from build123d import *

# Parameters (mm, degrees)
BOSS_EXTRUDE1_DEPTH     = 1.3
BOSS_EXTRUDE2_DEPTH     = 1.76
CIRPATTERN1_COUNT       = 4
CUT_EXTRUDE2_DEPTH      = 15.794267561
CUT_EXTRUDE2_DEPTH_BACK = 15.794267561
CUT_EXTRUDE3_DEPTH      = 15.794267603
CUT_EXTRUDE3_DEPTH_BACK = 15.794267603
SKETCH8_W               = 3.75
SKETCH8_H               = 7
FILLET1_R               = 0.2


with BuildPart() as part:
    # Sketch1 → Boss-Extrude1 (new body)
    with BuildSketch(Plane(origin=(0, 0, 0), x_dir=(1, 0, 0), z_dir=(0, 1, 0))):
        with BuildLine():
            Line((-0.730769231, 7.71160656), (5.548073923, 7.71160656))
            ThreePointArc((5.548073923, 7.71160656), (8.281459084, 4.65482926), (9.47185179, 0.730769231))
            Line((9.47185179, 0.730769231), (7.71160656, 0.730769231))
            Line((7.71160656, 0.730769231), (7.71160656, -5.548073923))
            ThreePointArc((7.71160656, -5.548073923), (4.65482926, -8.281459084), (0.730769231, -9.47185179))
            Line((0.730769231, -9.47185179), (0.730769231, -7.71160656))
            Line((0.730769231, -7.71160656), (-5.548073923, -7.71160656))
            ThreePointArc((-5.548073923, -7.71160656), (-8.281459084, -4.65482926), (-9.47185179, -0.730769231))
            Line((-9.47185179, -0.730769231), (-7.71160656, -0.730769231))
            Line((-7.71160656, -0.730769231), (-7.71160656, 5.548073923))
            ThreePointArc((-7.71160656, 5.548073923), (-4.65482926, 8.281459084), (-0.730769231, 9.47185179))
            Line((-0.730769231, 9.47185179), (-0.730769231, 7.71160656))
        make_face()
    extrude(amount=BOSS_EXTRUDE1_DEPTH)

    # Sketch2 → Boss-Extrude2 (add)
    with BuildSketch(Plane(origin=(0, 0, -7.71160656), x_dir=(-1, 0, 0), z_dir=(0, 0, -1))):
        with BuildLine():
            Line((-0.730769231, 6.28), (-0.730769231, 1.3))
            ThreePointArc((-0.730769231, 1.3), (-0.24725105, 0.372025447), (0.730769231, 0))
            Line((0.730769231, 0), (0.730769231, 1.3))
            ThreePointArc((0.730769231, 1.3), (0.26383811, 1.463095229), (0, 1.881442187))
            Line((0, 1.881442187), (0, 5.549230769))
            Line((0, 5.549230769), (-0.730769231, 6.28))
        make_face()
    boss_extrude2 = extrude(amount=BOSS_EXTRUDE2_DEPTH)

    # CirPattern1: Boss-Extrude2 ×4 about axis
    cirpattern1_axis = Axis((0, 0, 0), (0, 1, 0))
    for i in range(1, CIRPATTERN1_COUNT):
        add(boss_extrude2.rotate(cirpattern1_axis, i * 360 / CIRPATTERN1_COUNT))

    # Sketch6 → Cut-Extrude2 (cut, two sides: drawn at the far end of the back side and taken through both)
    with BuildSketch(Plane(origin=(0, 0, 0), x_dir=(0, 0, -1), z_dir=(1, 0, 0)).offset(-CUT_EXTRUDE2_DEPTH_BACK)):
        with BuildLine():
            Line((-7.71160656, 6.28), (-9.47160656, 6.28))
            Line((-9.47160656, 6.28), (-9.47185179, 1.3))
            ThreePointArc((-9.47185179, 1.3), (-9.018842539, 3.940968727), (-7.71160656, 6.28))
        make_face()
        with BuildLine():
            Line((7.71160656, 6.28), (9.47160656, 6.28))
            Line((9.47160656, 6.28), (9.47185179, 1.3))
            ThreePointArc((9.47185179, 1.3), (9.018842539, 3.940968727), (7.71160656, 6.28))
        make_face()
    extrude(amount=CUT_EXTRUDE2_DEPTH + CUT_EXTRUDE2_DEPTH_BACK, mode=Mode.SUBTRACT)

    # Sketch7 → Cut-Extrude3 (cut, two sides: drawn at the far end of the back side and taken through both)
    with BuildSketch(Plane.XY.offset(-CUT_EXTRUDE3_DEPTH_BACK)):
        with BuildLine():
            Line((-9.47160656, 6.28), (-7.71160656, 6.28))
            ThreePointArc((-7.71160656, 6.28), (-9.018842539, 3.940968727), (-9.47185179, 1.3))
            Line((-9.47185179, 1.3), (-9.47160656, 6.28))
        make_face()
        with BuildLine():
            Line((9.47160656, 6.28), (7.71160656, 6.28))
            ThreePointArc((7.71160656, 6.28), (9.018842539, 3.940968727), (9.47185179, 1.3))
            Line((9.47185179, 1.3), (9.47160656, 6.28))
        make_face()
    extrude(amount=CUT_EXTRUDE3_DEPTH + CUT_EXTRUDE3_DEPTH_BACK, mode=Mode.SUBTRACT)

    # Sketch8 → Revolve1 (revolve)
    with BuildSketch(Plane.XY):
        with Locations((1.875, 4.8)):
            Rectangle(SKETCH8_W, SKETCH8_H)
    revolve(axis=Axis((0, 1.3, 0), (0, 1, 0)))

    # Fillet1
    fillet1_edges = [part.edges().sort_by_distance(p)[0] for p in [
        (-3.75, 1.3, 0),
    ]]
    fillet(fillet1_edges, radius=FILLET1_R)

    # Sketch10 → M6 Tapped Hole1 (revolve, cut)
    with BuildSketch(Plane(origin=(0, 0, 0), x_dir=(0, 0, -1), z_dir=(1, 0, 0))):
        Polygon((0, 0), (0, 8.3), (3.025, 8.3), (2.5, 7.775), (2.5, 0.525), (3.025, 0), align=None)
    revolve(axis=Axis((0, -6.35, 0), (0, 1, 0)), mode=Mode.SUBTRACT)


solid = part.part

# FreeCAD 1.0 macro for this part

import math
import FreeCAD as App
import Part
import Sketcher
Q = App.Units.Quantity


def edges_at(feature, points):
    """Names of the edges that pass closest to the given points."""
    edges = feature.Shape.Edges
    near = lambda p: min(range(len(edges)), key=lambda i: edges[i].distToShape(Part.Vertex(*p))[0])
    return sorted({f"Edge{near(p) + 1}" for p in points})

doc = App.newDocument("Part")
body = doc.addObject("PartDesign::Body", "Body")

sketch1 = doc.addObject("Sketcher::SketchObject", "Sketch")
body.addObject(sketch1)
sketch1.AttachmentSupport = (doc.XZ_Plane, [""])
sketch1.MapMode = "FlatFace"
sketch1.addGeometry([
    Part.LineSegment(App.Vector(5.548074, -7.711607, 0), App.Vector(-0.730769, -7.711607, 0)),
    Part.LineSegment(App.Vector(-0.730769, -7.711607, 0), App.Vector(-0.730769, -9.471852, 0)),
    Part.ArcOfCircle(Part.Circle(App.Vector(0, 0, 0), App.Vector(0, 0, 1), 9.5), math.radians(-144.267075), math.radians(-94.411726)),
    Part.LineSegment(App.Vector(-7.711607, -5.548074, 0), App.Vector(-7.711607, 0.730769, 0)),
    Part.LineSegment(App.Vector(-7.711607, 0.730769, 0), App.Vector(-9.471852, 0.730769, 0)),
    Part.ArcOfCircle(Part.Circle(App.Vector(0, 0, 0), App.Vector(0, 0, 1), 9.5), math.radians(125.732925), math.radians(175.588274)),
    Part.LineSegment(App.Vector(-5.548074, 7.711607, 0), App.Vector(0.730769, 7.711607, 0)),
    Part.LineSegment(App.Vector(0.730769, 7.711607, 0), App.Vector(0.730769, 9.471852, 0)),
    Part.ArcOfCircle(Part.Circle(App.Vector(0, 0, 0), App.Vector(0, 0, 1), 9.5), math.radians(35.732925), math.radians(85.588274)),
    Part.LineSegment(App.Vector(7.711607, 5.548074, 0), App.Vector(7.711607, -0.730769, 0)),
    Part.LineSegment(App.Vector(7.711607, -0.730769, 0), App.Vector(9.471852, -0.730769, 0)),
    Part.ArcOfCircle(Part.Circle(App.Vector(0, 0, 0), App.Vector(0, 0, 1), 9.5), math.radians(-54.267075), math.radians(-4.411726)),
], False)
sketch1.addConstraint([
    Sketcher.Constraint("Coincident", 0, 2, 1, 1),
    Sketcher.Constraint("Coincident", 1, 2, 2, 2),
    Sketcher.Constraint("Coincident", 2, 1, 3, 1),
    Sketcher.Constraint("Coincident", 3, 2, 4, 1),
    Sketcher.Constraint("Coincident", 4, 2, 5, 2),
    Sketcher.Constraint("Coincident", 5, 1, 6, 1),
    Sketcher.Constraint("Coincident", 6, 2, 7, 1),
    Sketcher.Constraint("Coincident", 7, 2, 8, 2),
    Sketcher.Constraint("Coincident", 8, 1, 9, 1),
    Sketcher.Constraint("Coincident", 9, 2, 10, 1),
    Sketcher.Constraint("Coincident", 10, 2, 11, 2),
    Sketcher.Constraint("Coincident", 11, 1, 0, 1),
    Sketcher.Constraint("Horizontal", 0),
    Sketcher.Constraint("Vertical", 1),
    Sketcher.Constraint("Vertical", 3),
    Sketcher.Constraint("Horizontal", 4),
    Sketcher.Constraint("Horizontal", 6),
    Sketcher.Constraint("Vertical", 7),
    Sketcher.Constraint("Vertical", 9),
    Sketcher.Constraint("Horizontal", 10),
    Sketcher.Constraint("Coincident", 2, 3, -1, 1),
    Sketcher.Constraint("Coincident", 5, 3, -1, 1),
    Sketcher.Constraint("Coincident", 8, 3, -1, 1),
    Sketcher.Constraint("Coincident", 11, 3, -1, 1),
    Sketcher.Constraint("Equal", 2, 5),
    Sketcher.Constraint("Equal", 5, 8),
    Sketcher.Constraint("Equal", 8, 11),
    Sketcher.Constraint("Symmetric", 0, 2, 6, 2, -1, 1),
    Sketcher.Constraint("Symmetric", 3, 2, 9, 2, -1, 1),
    Sketcher.Constraint("Equal", 10, 1),
    Sketcher.Constraint("Equal", 6, 3),
    Sketcher.Constraint("Radius", 2, 9.5),
    Sketcher.Constraint("DistanceX", 0, 2, 0, 1, 6.278843),
    Sketcher.Constraint("DistanceX", 4, 2, 4, 1, 1.760245),
])
pad1 = doc.addObject("PartDesign::Pad", "Pad")
body.addObject(pad1)
pad1.Profile = sketch1
pad1.Length = 1.3
pad1.Reversed = True

sketch2 = doc.addObject("Sketcher::SketchObject", "Sketch001")
body.addObject(sketch2)
sketch2.AttachmentSupport = (doc.XY_Plane, [""])
sketch2.MapMode = "FlatFace"
sketch2.AttachmentOffset = App.Placement(App.Vector(0, 0, -7.711607), App.Rotation())
sketch2.addGeometry([
    Part.LineSegment(App.Vector(0.730769, 6.28, 0), App.Vector(0.730769, 1.3, 0)),
    Part.ArcOfCircle(Part.Circle(App.Vector(-0.730769, 1.471575, 0), App.Vector(0, 0, 1), 1.471575), math.radians(-90), math.radians(-6.695498)),
    Part.LineSegment(App.Vector(-0.730769, 0, 0), App.Vector(-0.730769, 1.3, 0)),
    Part.ArcOfCircle(Part.Circle(App.Vector(-0.730769, 2.049944, 0), App.Vector(0, 0, 1), 0.749944), math.radians(-90), math.radians(-12.984434)),
    Part.LineSegment(App.Vector(0, 1.881442, 0), App.Vector(0, 5.549231, 0)),
    Part.LineSegment(App.Vector(0, 5.549231, 0), App.Vector(0.730769, 6.28, 0)),
], False)
sketch2.addConstraint([
    Sketcher.Constraint("Coincident", 0, 2, 1, 2),
    Sketcher.Constraint("Coincident", 1, 1, 2, 1),
    Sketcher.Constraint("Coincident", 2, 2, 3, 1),
    Sketcher.Constraint("Coincident", 3, 2, 4, 1),
    Sketcher.Constraint("Coincident", 4, 2, 5, 1),
    Sketcher.Constraint("Coincident", 5, 2, 0, 1),
    Sketcher.Constraint("Vertical", 0),
    Sketcher.Constraint("Vertical", 2),
    Sketcher.Constraint("Vertical", 4),
    Sketcher.Constraint("Symmetric", 0, 2, 2, 2, -2),
    Sketcher.Constraint("PointOnObject", 1, 1, -1),
    Sketcher.Constraint("PointOnObject", 3, 2, -2),
    Sketcher.Constraint("Vertical", 1, 3, 3, 3),
    Sketcher.Constraint("Vertical", 3, 3, 1, 1),
    Sketcher.Constraint("Angle", 5, Q("45 deg")),
    Sketcher.Constraint("DistanceY", 2, 1, 2, 2, 1.3),
    Sketcher.Constraint("DistanceY", 0, 2, 0, 1, 4.98),
    Sketcher.Constraint("Radius", 1, 1.471575),
    Sketcher.Constraint("Radius", 3, 0.749944),
])
pad2 = doc.addObject("PartDesign::Pad", "Pad001")
body.addObject(pad2)
pad2.Profile = sketch2
pad2.Length = 1.76
pad2.Reversed = True
doc.recompute()

polarpattern = doc.addObject("PartDesign::PolarPattern", "PolarPattern")
body.addObject(polarpattern)
polarpattern.Originals = [pad2]
polarpattern.Axis = (doc.Y_Axis, [""])
polarpattern.Angle = 360
polarpattern.Occurrences = 4
body.Tip = polarpattern

sketch3 = doc.addObject("Sketcher::SketchObject", "Sketch002")
body.addObject(sketch3)
sketch3.AttachmentSupport = (doc.YZ_Plane, [""])
sketch3.MapMode = "FlatFace"
sketch3.addGeometry([
    Part.LineSegment(App.Vector(6.28, 7.711607, 0), App.Vector(6.28, 9.471607, 0)),
    Part.LineSegment(App.Vector(6.28, 9.471607, 0), App.Vector(1.3, 9.471852, 0)),
    Part.ArcOfCircle(Part.Circle(App.Vector(1.3, 1.547143, 0), App.Vector(0, 0, 1), 7.924709), math.radians(51.066777), math.radians(90)),
    Part.LineSegment(App.Vector(6.28, -9.471607, 0), App.Vector(6.28, -7.711607, 0)),
    Part.ArcOfCircle(Part.Circle(App.Vector(1.3, -1.547143, 0), App.Vector(0, 0, 1), 7.924709), math.radians(-90), math.radians(-51.066777)),
    Part.LineSegment(App.Vector(1.3, -9.471852, 0), App.Vector(6.28, -9.471607, 0)),
], False)
sketch3.addConstraint([
    Sketcher.Constraint("Coincident", 0, 2, 1, 1),
    Sketcher.Constraint("Coincident", 1, 2, 2, 2),
    Sketcher.Constraint("Coincident", 2, 1, 0, 1),
    Sketcher.Constraint("Coincident", 3, 2, 4, 2),
    Sketcher.Constraint("Coincident", 4, 1, 5, 1),
    Sketcher.Constraint("Coincident", 5, 2, 3, 1),
    Sketcher.Constraint("Vertical", 0),
    Sketcher.Constraint("Vertical", 3),
    Sketcher.Constraint("Equal", 2, 4),
    Sketcher.Constraint("Symmetric", 2, 3, 4, 3, -1),
    Sketcher.Constraint("Symmetric", 0, 2, 5, 2, -1),
    Sketcher.Constraint("Vertical", 4, 3, 1, 2),
    Sketcher.Constraint("Vertical", 1, 2, 4, 1),
    Sketcher.Constraint("DistanceY", 0, 1, 0, 2, 1.76),
    Sketcher.Constraint("DistanceX", -1, 1, 2, 3, 1.3),
    Sketcher.Constraint("Distance", 1, 4.98),
    Sketcher.Constraint("Radius", 2, 7.924709),
    Sketcher.Constraint("DistanceY", -1, 1, 1, 2, 9.471852),
])
pocket1 = doc.addObject("PartDesign::Pocket", "Pocket")
body.addObject(pocket1)
pocket1.Profile = sketch3
pocket1.Type = "ThroughAll"
pocket1.Midplane = True

sketch4 = doc.addObject("Sketcher::SketchObject", "Sketch003")
body.addObject(sketch4)
sketch4.AttachmentSupport = (doc.XY_Plane, [""])
sketch4.MapMode = "FlatFace"
sketch4.addGeometry([
    Part.LineSegment(App.Vector(-7.711607, 6.28, 0), App.Vector(-9.471607, 6.28, 0)),
    Part.LineSegment(App.Vector(-9.471607, 6.28, 0), App.Vector(-9.471852, 1.3, 0)),
    Part.ArcOfCircle(Part.Circle(App.Vector(-1.547143, 1.3, 0), App.Vector(0, 0, 1), 7.924709), math.radians(141.066777), math.radians(180)),
    Part.LineSegment(App.Vector(9.471607, 6.28, 0), App.Vector(7.711607, 6.28, 0)),
    Part.ArcOfCircle(Part.Circle(App.Vector(1.547143, 1.3, 0), App.Vector(0, 0, 1), 7.924709), math.radians(0), math.radians(38.933223)),
    Part.LineSegment(App.Vector(9.471852, 1.3, 0), App.Vector(9.471607, 6.28, 0)),
], False)
sketch4.addConstraint([
    Sketcher.Constraint("Coincident", 0, 2, 1, 1),
    Sketcher.Constraint("Coincident", 1, 2, 2, 2),
    Sketcher.Constraint("Coincident", 2, 1, 0, 1),
    Sketcher.Constraint("Coincident", 3, 2, 4, 2),
    Sketcher.Constraint("Coincident", 4, 1, 5, 1),
    Sketcher.Constraint("Coincident", 5, 2, 3, 1),
    Sketcher.Constraint("Horizontal", 0),
    Sketcher.Constraint("Horizontal", 3),
    Sketcher.Constraint("Equal", 2, 4),
    Sketcher.Constraint("Symmetric", 2, 3, 4, 3, -2),
    Sketcher.Constraint("Symmetric", 0, 2, 5, 2, -2),
    Sketcher.Constraint("Horizontal", 4, 3, 1, 2),
    Sketcher.Constraint("Horizontal", 1, 2, 4, 1),
    Sketcher.Constraint("DistanceX", 0, 2, 0, 1, 1.76),
    Sketcher.Constraint("DistanceY", -1, 1, 2, 3, 1.3),
    Sketcher.Constraint("Distance", 1, 4.98),
    Sketcher.Constraint("Radius", 2, 7.924709),
    Sketcher.Constraint("DistanceX", 1, 2, -1, 1, 9.471852),
])
pocket2 = doc.addObject("PartDesign::Pocket", "Pocket001")
body.addObject(pocket2)
pocket2.Profile = sketch4
pocket2.Type = "ThroughAll"
pocket2.Midplane = True

sketch5 = doc.addObject("Sketcher::SketchObject", "Sketch004")
body.addObject(sketch5)
sketch5.AttachmentSupport = (doc.XY_Plane, [""])
sketch5.MapMode = "FlatFace"
sketch5.addGeometry([
    Part.LineSegment(App.Vector(0, 8.3, 0), App.Vector(0, 1.3, 0)),
    Part.LineSegment(App.Vector(0, 1.3, 0), App.Vector(3.75, 1.3, 0)),
    Part.LineSegment(App.Vector(3.75, 1.3, 0), App.Vector(3.75, 8.3, 0)),
    Part.LineSegment(App.Vector(3.75, 8.3, 0), App.Vector(0, 8.3, 0)),
], False)
sketch5.addConstraint([
    Sketcher.Constraint("Coincident", 0, 2, 1, 1),
    Sketcher.Constraint("Coincident", 1, 2, 2, 1),
    Sketcher.Constraint("Coincident", 2, 2, 3, 1),
    Sketcher.Constraint("Coincident", 3, 2, 0, 1),
    Sketcher.Constraint("Vertical", 0),
    Sketcher.Constraint("Horizontal", 1),
    Sketcher.Constraint("Vertical", 2),
    Sketcher.Constraint("Horizontal", 3),
    Sketcher.Constraint("PointOnObject", 0, 2, -2),
    Sketcher.Constraint("DistanceY", 0, 2, 0, 1, 7.0),
    Sketcher.Constraint("DistanceX", 1, 1, 1, 2, 3.75),
    Sketcher.Constraint("DistanceY", -1, 1, 0, 2, 1.3),
])
revolution = doc.addObject("PartDesign::Revolution", "Revolution")
body.addObject(revolution)
revolution.Profile = sketch5
revolution.ReferenceAxis = (sketch5, ["V_Axis"])
revolution.Angle = 360
doc.recompute()

fillet = doc.addObject("PartDesign::Fillet", "Fillet")
body.addObject(fillet)
fillet.Base = (revolution, edges_at(revolution, [(-3.75, 1.3, 0)]))
fillet.Radius = 0.2

sketch6 = doc.addObject("Sketcher::SketchObject", "Sketch005")
body.addObject(sketch6)
sketch6.AttachmentSupport = (doc.YZ_Plane, [""])
sketch6.MapMode = "FlatFace"
sketch6.addGeometry([
    Part.LineSegment(App.Vector(8.3, 0, 0), App.Vector(0, 0, 0)),
    Part.LineSegment(App.Vector(0, 0, 0), App.Vector(0, -3.025, 0)),
    Part.LineSegment(App.Vector(0, -3.025, 0), App.Vector(0.525, -2.5, 0)),
    Part.LineSegment(App.Vector(0.525, -2.5, 0), App.Vector(7.775, -2.5, 0)),
    Part.LineSegment(App.Vector(7.775, -2.5, 0), App.Vector(8.3, -3.025, 0)),
    Part.LineSegment(App.Vector(8.3, -3.025, 0), App.Vector(8.3, 0, 0)),
], False)
sketch6.addConstraint([
    Sketcher.Constraint("Coincident", 0, 2, 1, 1),
    Sketcher.Constraint("Coincident", 1, 2, 2, 1),
    Sketcher.Constraint("Coincident", 2, 2, 3, 1),
    Sketcher.Constraint("Coincident", 3, 2, 4, 1),
    Sketcher.Constraint("Coincident", 4, 2, 5, 1),
    Sketcher.Constraint("Coincident", 5, 2, 0, 1),
    Sketcher.Constraint("Horizontal", 0),
    Sketcher.Constraint("Vertical", 1),
    Sketcher.Constraint("Horizontal", 3),
    Sketcher.Constraint("Vertical", 5),
    Sketcher.Constraint("Coincident", 0, 2, -1, 1),
    Sketcher.Constraint("Perpendicular", 2, 4),
    Sketcher.Constraint("Horizontal", 1, 2, 4, 2),
    Sketcher.Constraint("Equal", 2, 4),
    Sketcher.Constraint("DistanceX", 0, 2, 0, 1, 8.3),
    Sketcher.Constraint("DistanceX", 3, 1, 3, 2, 7.25),
    Sketcher.Constraint("DistanceY", 2, 2, -1, 1, 2.5),
])
groove = doc.addObject("PartDesign::Groove", "Groove")
body.addObject(groove)
groove.Profile = sketch6
groove.ReferenceAxis = (sketch6, ["H_Axis"])
groove.Angle = 360

doc.recompute()
